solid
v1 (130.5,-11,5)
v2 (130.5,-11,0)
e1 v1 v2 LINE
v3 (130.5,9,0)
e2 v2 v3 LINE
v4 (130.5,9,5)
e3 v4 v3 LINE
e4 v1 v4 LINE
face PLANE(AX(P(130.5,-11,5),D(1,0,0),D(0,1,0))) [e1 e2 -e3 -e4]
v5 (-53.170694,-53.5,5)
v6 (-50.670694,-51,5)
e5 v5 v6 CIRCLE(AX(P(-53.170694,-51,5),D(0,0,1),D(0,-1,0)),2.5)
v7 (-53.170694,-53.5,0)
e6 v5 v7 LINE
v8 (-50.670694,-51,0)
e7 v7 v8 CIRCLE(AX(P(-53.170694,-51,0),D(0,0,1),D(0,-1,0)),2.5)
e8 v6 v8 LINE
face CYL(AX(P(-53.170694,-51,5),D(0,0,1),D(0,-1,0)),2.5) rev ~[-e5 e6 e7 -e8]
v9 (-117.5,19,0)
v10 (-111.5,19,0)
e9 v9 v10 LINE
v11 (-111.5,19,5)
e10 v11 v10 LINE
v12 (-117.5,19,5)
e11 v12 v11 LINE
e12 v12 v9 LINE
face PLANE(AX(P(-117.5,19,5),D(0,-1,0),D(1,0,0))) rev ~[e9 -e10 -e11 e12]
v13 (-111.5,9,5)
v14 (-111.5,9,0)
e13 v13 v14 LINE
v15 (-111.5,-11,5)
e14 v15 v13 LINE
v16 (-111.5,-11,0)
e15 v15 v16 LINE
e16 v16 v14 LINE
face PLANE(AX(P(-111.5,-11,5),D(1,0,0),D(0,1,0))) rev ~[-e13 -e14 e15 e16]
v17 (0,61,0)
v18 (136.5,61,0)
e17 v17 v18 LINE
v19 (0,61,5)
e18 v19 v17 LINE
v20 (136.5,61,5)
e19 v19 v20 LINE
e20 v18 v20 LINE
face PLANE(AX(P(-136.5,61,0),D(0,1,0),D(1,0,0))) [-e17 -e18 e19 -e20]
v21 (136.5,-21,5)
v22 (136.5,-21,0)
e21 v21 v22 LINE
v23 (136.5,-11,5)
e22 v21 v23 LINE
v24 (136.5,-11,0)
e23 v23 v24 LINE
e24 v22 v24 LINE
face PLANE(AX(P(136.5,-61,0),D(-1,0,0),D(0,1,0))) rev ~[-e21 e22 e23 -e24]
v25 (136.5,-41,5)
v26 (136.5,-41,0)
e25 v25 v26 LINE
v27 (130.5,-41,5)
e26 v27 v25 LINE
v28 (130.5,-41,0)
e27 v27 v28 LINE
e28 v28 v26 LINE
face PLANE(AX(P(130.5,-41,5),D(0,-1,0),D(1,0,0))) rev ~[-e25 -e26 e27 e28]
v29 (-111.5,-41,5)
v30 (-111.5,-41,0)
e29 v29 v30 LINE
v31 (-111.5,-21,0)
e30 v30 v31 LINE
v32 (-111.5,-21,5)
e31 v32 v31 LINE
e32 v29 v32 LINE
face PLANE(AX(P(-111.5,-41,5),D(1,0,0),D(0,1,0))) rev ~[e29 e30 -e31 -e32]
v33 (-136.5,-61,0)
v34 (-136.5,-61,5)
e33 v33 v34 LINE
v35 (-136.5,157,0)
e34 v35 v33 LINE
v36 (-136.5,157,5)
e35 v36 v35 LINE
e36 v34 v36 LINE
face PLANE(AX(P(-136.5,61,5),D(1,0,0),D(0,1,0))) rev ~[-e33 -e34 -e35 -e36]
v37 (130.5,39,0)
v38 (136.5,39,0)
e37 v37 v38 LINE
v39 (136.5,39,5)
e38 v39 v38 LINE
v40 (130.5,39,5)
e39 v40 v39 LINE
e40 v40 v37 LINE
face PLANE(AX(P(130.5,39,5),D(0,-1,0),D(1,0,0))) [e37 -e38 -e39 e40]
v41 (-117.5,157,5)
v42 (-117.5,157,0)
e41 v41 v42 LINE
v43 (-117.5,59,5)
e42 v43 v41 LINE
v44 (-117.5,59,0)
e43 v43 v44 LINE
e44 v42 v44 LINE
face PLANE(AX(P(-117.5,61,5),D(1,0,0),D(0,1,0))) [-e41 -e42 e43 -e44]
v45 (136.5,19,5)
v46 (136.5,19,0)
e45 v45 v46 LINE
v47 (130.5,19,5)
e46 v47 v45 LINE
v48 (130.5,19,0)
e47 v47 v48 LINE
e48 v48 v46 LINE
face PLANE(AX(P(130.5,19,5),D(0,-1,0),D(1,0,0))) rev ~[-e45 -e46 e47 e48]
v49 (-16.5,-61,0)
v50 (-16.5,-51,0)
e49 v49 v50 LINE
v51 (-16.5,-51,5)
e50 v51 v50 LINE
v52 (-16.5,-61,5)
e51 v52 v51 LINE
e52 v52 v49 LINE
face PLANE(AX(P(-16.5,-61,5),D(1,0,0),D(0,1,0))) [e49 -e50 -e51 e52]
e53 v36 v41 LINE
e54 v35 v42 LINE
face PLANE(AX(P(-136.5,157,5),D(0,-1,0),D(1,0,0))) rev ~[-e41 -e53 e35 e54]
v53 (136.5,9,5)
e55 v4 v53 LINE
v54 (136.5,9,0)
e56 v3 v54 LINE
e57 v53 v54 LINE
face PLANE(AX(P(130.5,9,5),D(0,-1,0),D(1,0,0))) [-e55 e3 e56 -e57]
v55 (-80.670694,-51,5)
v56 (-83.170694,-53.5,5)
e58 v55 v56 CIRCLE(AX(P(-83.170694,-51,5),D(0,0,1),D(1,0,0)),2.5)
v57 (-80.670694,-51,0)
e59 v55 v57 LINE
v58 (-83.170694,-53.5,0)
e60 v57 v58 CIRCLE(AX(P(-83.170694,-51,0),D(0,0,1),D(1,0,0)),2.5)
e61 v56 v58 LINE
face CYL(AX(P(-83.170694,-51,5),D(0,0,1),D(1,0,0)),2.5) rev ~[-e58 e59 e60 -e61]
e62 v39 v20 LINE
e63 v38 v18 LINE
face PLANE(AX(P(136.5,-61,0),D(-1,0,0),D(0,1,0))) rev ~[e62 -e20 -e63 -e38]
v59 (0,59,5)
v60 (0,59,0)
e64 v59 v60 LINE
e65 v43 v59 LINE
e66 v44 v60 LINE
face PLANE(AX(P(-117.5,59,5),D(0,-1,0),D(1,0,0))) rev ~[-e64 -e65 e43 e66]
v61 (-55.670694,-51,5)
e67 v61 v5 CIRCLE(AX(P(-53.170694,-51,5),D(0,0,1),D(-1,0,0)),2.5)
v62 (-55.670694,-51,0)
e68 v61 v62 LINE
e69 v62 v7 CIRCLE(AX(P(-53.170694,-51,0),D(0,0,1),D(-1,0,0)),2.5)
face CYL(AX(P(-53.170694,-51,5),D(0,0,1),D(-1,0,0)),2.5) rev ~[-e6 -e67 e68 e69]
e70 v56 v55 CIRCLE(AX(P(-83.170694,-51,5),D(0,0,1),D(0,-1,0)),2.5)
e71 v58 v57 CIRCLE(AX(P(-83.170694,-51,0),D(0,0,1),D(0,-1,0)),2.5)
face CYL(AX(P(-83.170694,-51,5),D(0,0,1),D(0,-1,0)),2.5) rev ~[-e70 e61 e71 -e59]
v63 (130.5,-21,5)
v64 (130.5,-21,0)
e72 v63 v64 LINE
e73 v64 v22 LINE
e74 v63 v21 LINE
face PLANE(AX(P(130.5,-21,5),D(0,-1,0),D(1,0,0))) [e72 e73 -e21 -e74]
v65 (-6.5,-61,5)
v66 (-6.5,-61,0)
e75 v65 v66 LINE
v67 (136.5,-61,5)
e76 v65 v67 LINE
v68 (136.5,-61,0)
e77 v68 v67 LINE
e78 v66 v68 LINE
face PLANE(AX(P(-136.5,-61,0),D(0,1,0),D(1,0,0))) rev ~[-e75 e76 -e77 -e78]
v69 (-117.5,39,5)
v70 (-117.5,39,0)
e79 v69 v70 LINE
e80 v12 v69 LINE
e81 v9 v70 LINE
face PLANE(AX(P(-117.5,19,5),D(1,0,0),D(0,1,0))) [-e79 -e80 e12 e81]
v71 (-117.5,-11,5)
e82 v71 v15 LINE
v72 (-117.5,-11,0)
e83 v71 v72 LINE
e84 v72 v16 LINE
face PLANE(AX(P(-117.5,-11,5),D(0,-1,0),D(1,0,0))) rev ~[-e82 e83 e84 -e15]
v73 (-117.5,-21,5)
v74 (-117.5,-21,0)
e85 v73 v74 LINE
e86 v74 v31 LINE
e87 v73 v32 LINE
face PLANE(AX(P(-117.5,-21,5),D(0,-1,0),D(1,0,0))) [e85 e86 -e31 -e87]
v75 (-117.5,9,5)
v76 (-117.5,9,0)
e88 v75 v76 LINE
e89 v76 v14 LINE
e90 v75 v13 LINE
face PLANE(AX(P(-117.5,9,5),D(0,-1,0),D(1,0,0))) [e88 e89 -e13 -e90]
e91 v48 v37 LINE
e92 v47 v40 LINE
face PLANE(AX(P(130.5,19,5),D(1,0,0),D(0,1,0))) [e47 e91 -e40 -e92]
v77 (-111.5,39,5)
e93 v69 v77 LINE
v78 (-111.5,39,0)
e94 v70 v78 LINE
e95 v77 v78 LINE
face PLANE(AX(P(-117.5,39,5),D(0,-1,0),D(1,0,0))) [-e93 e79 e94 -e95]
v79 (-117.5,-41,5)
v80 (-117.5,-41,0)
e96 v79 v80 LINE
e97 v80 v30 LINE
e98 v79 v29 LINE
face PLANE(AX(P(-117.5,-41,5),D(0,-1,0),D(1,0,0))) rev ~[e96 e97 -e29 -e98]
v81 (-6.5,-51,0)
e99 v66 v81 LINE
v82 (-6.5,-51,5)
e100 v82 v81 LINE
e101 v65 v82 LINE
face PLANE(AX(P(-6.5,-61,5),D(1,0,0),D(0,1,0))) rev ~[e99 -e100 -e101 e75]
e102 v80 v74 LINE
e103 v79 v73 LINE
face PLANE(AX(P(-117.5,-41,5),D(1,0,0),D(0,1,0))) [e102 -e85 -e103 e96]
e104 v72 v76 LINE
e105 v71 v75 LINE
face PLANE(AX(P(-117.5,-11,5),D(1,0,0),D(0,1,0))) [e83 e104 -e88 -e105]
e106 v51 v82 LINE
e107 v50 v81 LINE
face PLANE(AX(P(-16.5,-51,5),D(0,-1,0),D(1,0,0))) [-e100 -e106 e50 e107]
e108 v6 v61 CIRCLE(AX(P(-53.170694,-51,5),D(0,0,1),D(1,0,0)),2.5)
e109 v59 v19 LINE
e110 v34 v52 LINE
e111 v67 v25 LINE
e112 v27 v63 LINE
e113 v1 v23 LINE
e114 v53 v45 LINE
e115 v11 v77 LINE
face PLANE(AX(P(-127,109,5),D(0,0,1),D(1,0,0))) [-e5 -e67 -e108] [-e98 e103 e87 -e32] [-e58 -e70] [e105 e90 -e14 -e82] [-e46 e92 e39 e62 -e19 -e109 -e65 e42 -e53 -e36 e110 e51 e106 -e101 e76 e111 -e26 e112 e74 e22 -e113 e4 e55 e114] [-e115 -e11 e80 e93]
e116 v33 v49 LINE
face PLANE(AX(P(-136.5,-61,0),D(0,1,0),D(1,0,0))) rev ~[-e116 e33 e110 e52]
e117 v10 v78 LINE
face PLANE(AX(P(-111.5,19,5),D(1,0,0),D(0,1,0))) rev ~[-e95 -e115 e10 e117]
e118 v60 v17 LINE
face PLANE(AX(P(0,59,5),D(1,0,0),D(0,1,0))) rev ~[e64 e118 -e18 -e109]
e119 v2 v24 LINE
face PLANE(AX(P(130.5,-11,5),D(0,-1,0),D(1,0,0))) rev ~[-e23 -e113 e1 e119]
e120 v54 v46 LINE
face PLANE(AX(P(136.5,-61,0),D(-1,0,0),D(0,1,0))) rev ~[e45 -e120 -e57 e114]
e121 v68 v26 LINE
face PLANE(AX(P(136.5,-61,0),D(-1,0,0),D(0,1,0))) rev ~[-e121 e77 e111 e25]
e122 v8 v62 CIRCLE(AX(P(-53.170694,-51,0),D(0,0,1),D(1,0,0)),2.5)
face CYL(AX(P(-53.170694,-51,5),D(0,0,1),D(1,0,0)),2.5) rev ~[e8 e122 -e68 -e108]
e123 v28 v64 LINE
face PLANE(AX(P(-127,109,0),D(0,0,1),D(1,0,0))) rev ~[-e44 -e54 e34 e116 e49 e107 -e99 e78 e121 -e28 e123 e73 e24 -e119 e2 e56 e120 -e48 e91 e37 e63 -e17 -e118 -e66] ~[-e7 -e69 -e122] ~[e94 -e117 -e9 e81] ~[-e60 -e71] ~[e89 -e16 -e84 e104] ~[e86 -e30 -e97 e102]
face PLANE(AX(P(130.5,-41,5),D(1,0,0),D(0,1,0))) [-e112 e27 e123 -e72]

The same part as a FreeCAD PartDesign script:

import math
import FreeCAD as App
import Part
import Sketcher
from FreeCAD import Vector
Q = App.Units.Quantity

doc = App.newDocument("Part")
body = doc.addObject("PartDesign::Body", "Body")

# Sketch on XY plane
sketch1 = body.newObject("Sketcher::SketchObject", "Sketch")
sketch1.AttachmentSupport = (doc.getObject("XY_Plane"), [""])
sketch1.MapMode = "FlatFace"
sketch1.addGeometry([
    Part.LineSegment(Vector(-136, 61, 0), Vector(-136, -61, 0)),
    Part.LineSegment(Vector(-136, -61, 0), Vector(136, -61, 0)),
    Part.LineSegment(Vector(136, -61, 0), Vector(136, 61, 0)),
    Part.LineSegment(Vector(136, 61, 0), Vector(-136, 61, 0)),
], False)
sketch1.addConstraint([
    Sketcher.Constraint("Coincident", 0, 2, 1, 1),
    Sketcher.Constraint("Coincident", 1, 2, 2, 1),
    Sketcher.Constraint("Coincident", 2, 2, 3, 1),
    Sketcher.Constraint("Coincident", 3, 2, 0, 1),
    Sketcher.Constraint("Vertical", 0),
    Sketcher.Constraint("Horizontal", 1),
    Sketcher.Constraint("Vertical", 2),
    Sketcher.Constraint("Horizontal", 3),
    Sketcher.Constraint("Symmetric", 0, 2, 2, 2, -1, 1),
    Sketcher.Constraint("DistanceX", 1, 1, 1, 2, Q("273 mm")),
    Sketcher.Constraint("DistanceY", 0, 2, 0, 1, Q("122 mm")),
])
pad1 = body.newObject("PartDesign::Pad", "Pad")
pad1.Profile = sketch1
pad1.Length = 5

# Sketch on XY plane
sketch2 = body.newObject("Sketcher::SketchObject", "Sketch001")
sketch2.AttachmentSupport = (doc.getObject("XY_Plane"), [""])
sketch2.MapMode = "FlatFace"
sketch2.AttachmentOffset = App.Placement(Vector(0, 0, 5), App.Rotation())
sketch2.addGeometry([
    Part.LineSegment(Vector(-136, 157, 0), Vector(-136, 61, 0)),
    Part.LineSegment(Vector(-136, 61, 0), Vector(-118, 61, 0)),
    Part.LineSegment(Vector(-118, 61, 0), Vector(-118, 157, 0)),
    Part.LineSegment(Vector(-118, 157, 0), Vector(-136, 157, 0)),
], False)
sketch2.addConstraint([
    Sketcher.Constraint("Coincident", 0, 2, 1, 1),
    Sketcher.Constraint("Coincident", 1, 2, 2, 1),
    Sketcher.Constraint("Coincident", 2, 2, 3, 1),
    Sketcher.Constraint("Coincident", 3, 2, 0, 1),
    Sketcher.Constraint("Vertical", 0),
    Sketcher.Constraint("Horizontal", 1),
    Sketcher.Constraint("Vertical", 2),
    Sketcher.Constraint("Horizontal", 3),
    Sketcher.Constraint("DistanceX", 1, 1, 1, 2, Q("19 mm")),
    Sketcher.Constraint("DistanceY", 0, 2, 0, 1, Q("96 mm")),
    Sketcher.Constraint("DistanceY", -1, 1, 0, 2, Q("61 mm")),
    Sketcher.Constraint("DistanceX", 0, 2, -1, 1, Q("136.5 mm")),
])
pad2 = body.newObject("PartDesign::Pad", "Pad001")
pad2.Profile = sketch2
pad2.Length = 5
pad2.Reversed = True

# Sketch on XY plane
sketch3 = body.newObject("Sketcher::SketchObject", "Sketch002")
sketch3.AttachmentSupport = (doc.getObject("XY_Plane"), [""])
sketch3.MapMode = "FlatFace"
sketch3.AttachmentOffset = App.Placement(Vector(0, 0, 5), App.Rotation())
sketch3.addGeometry([
    Part.LineSegment(Vector(-118, 39, 0), Vector(-118, 19, 0)),  # 0
    Part.LineSegment(Vector(-118, 19, 0), Vector(-112, 19, 0)),  # 1
    Part.LineSegment(Vector(-112, 19, 0), Vector(-112, 39, 0)),  # 2
    Part.LineSegment(Vector(-112, 39, 0), Vector(-118, 39, 0)),  # 3
    Part.LineSegment(Vector(-118, 9, 0), Vector(-118, -11, 0)),  # 4
    Part.LineSegment(Vector(-118, -11, 0), Vector(-112, -11, 0)),  # 5
    Part.LineSegment(Vector(-112, -11, 0), Vector(-112, 9, 0)),  # 6
    Part.LineSegment(Vector(-112, 9, 0), Vector(-118, 9, 0)),  # 7
    Part.LineSegment(Vector(-118, -21, 0), Vector(-118, -41, 0)),  # 8
    Part.LineSegment(Vector(-118, -41, 0), Vector(-112, -41, 0)),  # 9
    Part.LineSegment(Vector(-112, -41, 0), Vector(-112, -21, 0)),  # 10
    Part.LineSegment(Vector(-112, -21, 0), Vector(-118, -21, 0)),  # 11
    Part.LineSegment(Vector(130, 39, 0), Vector(130, 19, 0)),  # 12
    Part.LineSegment(Vector(130, 19, 0), Vector(136, 19, 0)),  # 13
    Part.LineSegment(Vector(136, 19, 0), Vector(136, 39, 0)),  # 14
    Part.LineSegment(Vector(136, 39, 0), Vector(130, 39, 0)),  # 15
    Part.LineSegment(Vector(130, 9, 0), Vector(130, -11, 0)),  # 16
    Part.LineSegment(Vector(130, -11, 0), Vector(136, -11, 0)),  # 17
    Part.LineSegment(Vector(136, -11, 0), Vector(136, 9, 0)),  # 18
    Part.LineSegment(Vector(136, 9, 0), Vector(130, 9, 0)),  # 19
    Part.LineSegment(Vector(130, -21, 0), Vector(130, -41, 0)),  # 20
    Part.LineSegment(Vector(130, -41, 0), Vector(136, -41, 0)),  # 21
    Part.LineSegment(Vector(136, -41, 0), Vector(136, -21, 0)),  # 22
    Part.LineSegment(Vector(136, -21, 0), Vector(130, -21, 0)),  # 23
], False)
sketch3.addConstraint([
    Sketcher.Constraint("Coincident", 0, 2, 1, 1),
    Sketcher.Constraint("Coincident", 1, 2, 2, 1),
    Sketcher.Constraint("Coincident", 2, 2, 3, 1),
    Sketcher.Constraint("Coincident", 3, 2, 0, 1),
    Sketcher.Constraint("Coincident", 4, 2, 5, 1),
    Sketcher.Constraint("Coincident", 5, 2, 6, 1),
    Sketcher.Constraint("Coincident", 6, 2, 7, 1),
    Sketcher.Constraint("Coincident", 7, 2, 4, 1),
    Sketcher.Constraint("Coincident", 8, 2, 9, 1),
    Sketcher.Constraint("Coincident", 9, 2, 10, 1),
    Sketcher.Constraint("Coincident", 10, 2, 11, 1),
    Sketcher.Constraint("Coincident", 11, 2, 8, 1),
    Sketcher.Constraint("Coincident", 12, 2, 13, 1),
    Sketcher.Constraint("Coincident", 13, 2, 14, 1),
    Sketcher.Constraint("Coincident", 14, 2, 15, 1),
    Sketcher.Constraint("Coincident", 15, 2, 12, 1),
    Sketcher.Constraint("Coincident", 16, 2, 17, 1),
    Sketcher.Constraint("Coincident", 17, 2, 18, 1),
    Sketcher.Constraint("Coincident", 18, 2, 19, 1),
    Sketcher.Constraint("Coincident", 19, 2, 16, 1),
    Sketcher.Constraint("Coincident", 20, 2, 21, 1),
    Sketcher.Constraint("Coincident", 21, 2, 22, 1),
    Sketcher.Constraint("Coincident", 22, 2, 23, 1),
    Sketcher.Constraint("Coincident", 23, 2, 20, 1),
    Sketcher.Constraint("Vertical", 0),
    Sketcher.Constraint("Horizontal", 1),
    Sketcher.Constraint("Vertical", 2),
    Sketcher.Constraint("Horizontal", 3),
    Sketcher.Constraint("Vertical", 4),
    Sketcher.Constraint("Horizontal", 5),
    Sketcher.Constraint("Vertical", 6),
    Sketcher.Constraint("Horizontal", 7),
    Sketcher.Constraint("Vertical", 8),
    Sketcher.Constraint("Horizontal", 9),
    Sketcher.Constraint("Vertical", 10),
    Sketcher.Constraint("Horizontal", 11),
    Sketcher.Constraint("Vertical", 12),
    Sketcher.Constraint("Horizontal", 13),
    Sketcher.Constraint("Vertical", 14),
    Sketcher.Constraint("Horizontal", 15),
    Sketcher.Constraint("Vertical", 16),
    Sketcher.Constraint("Horizontal", 17),
    Sketcher.Constraint("Vertical", 18),
    Sketcher.Constraint("Horizontal", 19),
    Sketcher.Constraint("Vertical", 20),
    Sketcher.Constraint("Horizontal", 21),
    Sketcher.Constraint("Vertical", 22),
    Sketcher.Constraint("Horizontal", 23),
    Sketcher.Constraint("Horizontal", 1, 2, 12, 2),
    Sketcher.Constraint("Horizontal", 3, 2, 14, 2),
    Sketcher.Constraint("Horizontal", 5, 2, 16, 2),
    Sketcher.Constraint("Horizontal", 7, 2, 18, 2),
    Sketcher.Constraint("Horizontal", 9, 2, 20, 2),
    Sketcher.Constraint("Horizontal", 11, 2, 22, 2),
    Sketcher.Constraint("Vertical", 3, 2, 4, 2),
    Sketcher.Constraint("Vertical", 2, 2, 5, 2),
    Sketcher.Constraint("Vertical", 7, 2, 8, 2),
    Sketcher.Constraint("Vertical", 6, 2, 9, 2),
    Sketcher.Constraint("Vertical", 15, 2, 16, 2),
    Sketcher.Constraint("Vertical", 14, 2, 17, 2),
    Sketcher.Constraint("Vertical", 19, 2, 20, 2),
    Sketcher.Constraint("Vertical", 18, 2, 21, 2),
    Sketcher.Constraint("Equal", 11, 13),
    Sketcher.Constraint("Equal", 2, 4),
    Sketcher.Constraint("Equal", 6, 8),
    Sketcher.Constraint("DistanceX", 1, 1, 1, 2, Q("6 mm")),
    Sketcher.Constraint("DistanceY", 0, 2, 0, 1, Q("20 mm")),
    Sketcher.Constraint("DistanceY", -1, 1, 0, 2, Q("19 mm")),
    Sketcher.Constraint("DistanceY", 4, 2, -1, 1, Q("11 mm")),
    Sketcher.Constraint("DistanceY", 8, 2, -1, 1, Q("41 mm")),
    Sketcher.Constraint("DistanceX", 1, 2, 12, 2, Q("242 mm")),
    Sketcher.Constraint("DistanceX", 0, 2, -1, 1, Q("117.5 mm")),
])
pocket1 = body.newObject("PartDesign::Pocket", "Pocket")
pocket1.Profile = sketch3
pocket1.Length = 6

# Sketch on XY plane
sketch4 = body.newObject("Sketcher::SketchObject", "Sketch003")
sketch4.AttachmentSupport = (doc.getObject("XY_Plane"), [""])
sketch4.MapMode = "FlatFace"
sketch4.AttachmentOffset = App.Placement(Vector(0, 0, 5), App.Rotation())
sketch4.addGeometry([
    Part.LineSegment(Vector(-117.5, 61, 0), Vector(-117.5, 59, 0)),
    Part.LineSegment(Vector(-117.5, 59, 0), Vector(0, 59, 0)),
    Part.LineSegment(Vector(0, 59, 0), Vector(0, 61, 0)),
    Part.LineSegment(Vector(0, 61, 0), Vector(-117.5, 61, 0)),
], False)
sketch4.addConstraint([
    Sketcher.Constraint("Coincident", 0, 2, 1, 1),
    Sketcher.Constraint("Coincident", 1, 2, 2, 1),
    Sketcher.Constraint("Coincident", 2, 2, 3, 1),
    Sketcher.Constraint("Coincident", 3, 2, 0, 1),
    Sketcher.Constraint("Vertical", 0),
    Sketcher.Constraint("Horizontal", 1),
    Sketcher.Constraint("Vertical", 2),
    Sketcher.Constraint("Horizontal", 3),
    Sketcher.Constraint("PointOnObject", 1, 2, -2),
    Sketcher.Constraint("DistanceY", 0, 2, 0, 1, Q("2 mm")),
    Sketcher.Constraint("DistanceX", 1, 1, 1, 2, Q("117.5 mm")),
    Sketcher.Constraint("DistanceY", -1, 1, 0, 2, Q("59 mm")),
])
pocket2 = body.newObject("PartDesign::Pocket", "Pocket001")
pocket2.Profile = sketch4
pocket2.Length = 6

# Sketch on XY plane
sketch5 = body.newObject("Sketcher::SketchObject", "Sketch004")
sketch5.AttachmentSupport = (doc.getObject("XY_Plane"), [""])
sketch5.MapMode = "FlatFace"
sketch5.AttachmentOffset = App.Placement(Vector(0, 0, 5), App.Rotation())
sketch5.addGeometry([
    Part.ArcOfCircle(Part.Circle(Vector(-83.2, -51, 0), Vector(0, 0, 1), 2.5), math.radians(0), math.radians(270)),  # 0
    Part.ArcOfCircle(Part.Circle(Vector(-83.2, -51, 0), Vector(0, 0, 1), 2.5), math.radians(-90), math.radians(0)),  # 1
    Part.ArcOfCircle(Part.Circle(Vector(-53.2, -51, 0), Vector(0, 0, 1), 2.5), math.radians(180), math.radians(270)),  # 2
    Part.ArcOfCircle(Part.Circle(Vector(-53.2, -51, 0), Vector(0, 0, 1), 2.5), math.radians(-90), math.radians(0)),  # 3
    Part.ArcOfCircle(Part.Circle(Vector(-53.2, -51, 0), Vector(0, 0, 1), 2.5), math.radians(0), math.radians(180)),  # 4
], False)
sketch5.addConstraint([
    Sketcher.Constraint("Tangent", 0, 1, 1, 2),
    Sketcher.Constraint("Coincident", 1, 1, 0, 2),
    Sketcher.Constraint("Tangent", 2, 2, 3, 1),
    Sketcher.Constraint("Tangent", 3, 2, 4, 1),
    Sketcher.Constraint("Tangent", 4, 2, 2, 1),
    Sketcher.Constraint("Equal", 1, 2),
    Sketcher.Constraint("Horizontal", 1, 3, 2, 3),
    Sketcher.Constraint("Horizontal", 4, 3, 0, 1),
    Sketcher.Constraint("Horizontal", 0, 1, 3, 2),
    Sketcher.Constraint("Horizontal", 3, 2, 4, 2),
    Sketcher.Constraint("Vertical", 0, 3, 1, 1),
    Sketcher.Constraint("Vertical", 4, 3, 2, 2),
    Sketcher.Constraint("Radius", 0, Q("2.5 mm")),
    Sketcher.Constraint("DistanceY", 0, 3, -1, 1, Q("51 mm")),
    Sketcher.Constraint("DistanceX", 0, 3, 2, 3, Q("30 mm")),
    Sketcher.Constraint("DistanceX", 0, 3, -1, 1, Q("83.170694 mm")),
])
pocket3 = body.newObject("PartDesign::Pocket", "Pocket002")
pocket3.Profile = sketch5
pocket3.Length = 10

# Sketch on XY plane
sketch6 = body.newObject("Sketcher::SketchObject", "Sketch005")
sketch6.AttachmentSupport = (doc.getObject("XY_Plane"), [""])
sketch6.MapMode = "FlatFace"
sketch6.AttachmentOffset = App.Placement(Vector(0, 0, 5), App.Rotation())
sketch6.addGeometry([
    Part.LineSegment(Vector(-16, -51, 0), Vector(-16, -61, 0)),
    Part.LineSegment(Vector(-16, -61, 0), Vector(-6, -61, 0)),
    Part.LineSegment(Vector(-6, -61, 0), Vector(-6, -51, 0)),
    Part.LineSegment(Vector(-6, -51, 0), Vector(-16, -51, 0)),
], False)
sketch6.addConstraint([
    Sketcher.Constraint("Coincident", 0, 2, 1, 1),
    Sketcher.Constraint("Coincident", 1, 2, 2, 1),
    Sketcher.Constraint("Coincident", 2, 2, 3, 1),
    Sketcher.Constraint("Coincident", 3, 2, 0, 1),
    Sketcher.Constraint("Vertical", 0),
    Sketcher.Constraint("Horizontal", 1),
    Sketcher.Constraint("Vertical", 2),
    Sketcher.Constraint("Horizontal", 3),
    Sketcher.Constraint("Equal", 3, 0),
    Sketcher.Constraint("DistanceX", 1, 1, 1, 2, Q("10 mm")),
    Sketcher.Constraint("DistanceY", 0, 2, -1, 1, Q("61 mm")),
    Sketcher.Constraint("DistanceX", 0, 2, -1, 1, Q("16.5 mm")),
])
pocket4 = body.newObject("PartDesign::Pocket", "Pocket003")
pocket4.Profile = sketch6
pocket4.Length = 10

doc.recompute()
